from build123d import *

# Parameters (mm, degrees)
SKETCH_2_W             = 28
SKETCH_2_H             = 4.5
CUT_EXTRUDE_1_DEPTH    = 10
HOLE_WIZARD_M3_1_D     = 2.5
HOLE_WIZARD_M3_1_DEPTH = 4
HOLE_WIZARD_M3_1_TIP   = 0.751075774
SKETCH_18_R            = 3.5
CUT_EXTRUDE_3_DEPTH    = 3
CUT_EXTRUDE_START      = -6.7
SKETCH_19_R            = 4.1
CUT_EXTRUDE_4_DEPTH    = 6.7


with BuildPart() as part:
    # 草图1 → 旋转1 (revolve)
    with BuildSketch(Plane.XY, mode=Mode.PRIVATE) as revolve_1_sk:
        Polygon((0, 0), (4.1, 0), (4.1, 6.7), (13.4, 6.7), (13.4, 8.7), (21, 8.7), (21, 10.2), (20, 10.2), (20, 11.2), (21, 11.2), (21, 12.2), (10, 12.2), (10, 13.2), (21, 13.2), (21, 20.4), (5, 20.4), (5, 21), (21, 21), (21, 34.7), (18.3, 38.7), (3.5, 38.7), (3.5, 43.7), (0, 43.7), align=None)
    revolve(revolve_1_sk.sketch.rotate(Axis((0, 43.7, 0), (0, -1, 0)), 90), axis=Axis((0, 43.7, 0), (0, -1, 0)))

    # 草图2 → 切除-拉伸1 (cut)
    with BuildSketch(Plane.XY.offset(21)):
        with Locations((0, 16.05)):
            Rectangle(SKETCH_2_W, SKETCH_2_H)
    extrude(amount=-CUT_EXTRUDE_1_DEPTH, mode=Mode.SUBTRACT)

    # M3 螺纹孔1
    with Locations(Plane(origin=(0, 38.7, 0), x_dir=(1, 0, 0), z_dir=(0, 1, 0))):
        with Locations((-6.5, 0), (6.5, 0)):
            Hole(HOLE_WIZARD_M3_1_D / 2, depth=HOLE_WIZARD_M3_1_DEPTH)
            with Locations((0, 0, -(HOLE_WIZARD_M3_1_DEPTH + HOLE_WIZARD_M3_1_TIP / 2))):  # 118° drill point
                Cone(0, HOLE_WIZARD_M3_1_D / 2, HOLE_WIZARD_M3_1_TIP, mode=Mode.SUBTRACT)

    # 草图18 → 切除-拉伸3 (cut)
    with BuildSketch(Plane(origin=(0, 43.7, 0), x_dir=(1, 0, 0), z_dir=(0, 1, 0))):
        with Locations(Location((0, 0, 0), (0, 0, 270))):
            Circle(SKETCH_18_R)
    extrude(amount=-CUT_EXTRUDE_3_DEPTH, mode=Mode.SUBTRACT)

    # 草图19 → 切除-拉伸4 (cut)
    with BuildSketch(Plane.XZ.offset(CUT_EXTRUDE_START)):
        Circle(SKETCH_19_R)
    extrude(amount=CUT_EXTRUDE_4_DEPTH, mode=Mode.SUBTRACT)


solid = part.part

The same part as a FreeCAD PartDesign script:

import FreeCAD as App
import Part
import Sketcher


def add_polygon(sketch, points):
    """Adds a closed chain of lines whose ends are joined by coincident constraints."""
    first, n = sketch.GeometryCount, len(points)
    for a, b in zip(points, points[1:] + points[:1]):
        sketch.addGeometry(Part.LineSegment(App.Vector(*a, 0), App.Vector(*b, 0)), False)
    for i in range(n):
        sketch.addConstraint(Sketcher.Constraint("Coincident", first + i, 2, first + (i + 1) % n, 1))

doc = App.newDocument("Part")
params = doc.addObject("Spreadsheet::Sheet", "Params")
for row, (alias, value) in enumerate([
    ("sketch1_width", "1 mm"),
    ("sketch1_width2", "11 mm"),
    ("sketch1_width3", "16 mm"),
    ("sketch1_height", "2 mm"),
    ("sketch1_height2", "5 mm"),
    ("revolution_angle", "360 deg"),
    ("sketch2_width", "28 mm"),
    ("sketch2_height", "4.5 mm"),
    ("pocket1_length", "10 mm"),
    ("sketch3_diameter", "2.5 mm"),
    ("hole_diameter", "2.5 mm"),
    ("hole_depth", "4 mm"),
    ("sketch4_diameter", "7 mm"),
    ("pocket2_length", "3 mm"),
    ("sketch5_diameter", "8.2 mm"),
    ("pocket3_length", "6.7 mm"),
], start=1):
    params.set(f"A{row}", alias)
    params.set(f"B{row}", "=" + value)
    params.setAlias(f"B{row}", alias)

body = doc.addObject("PartDesign::Body", "Body")

sketch1 = body.newObject("Sketcher::SketchObject", "Sketch")
sketch1.AttachmentSupport = (doc.getObject("XY_Plane"), [""])
sketch1.MapMode = "FlatFace"
add_polygon(sketch1, [(0, 0), (4.1, 0), (4.1, 6.7), (13.4, 6.7), (13.4, 8.7), (21, 8.7), (21, 10.2), (20, 10.2), (20, 11.2), (21, 11.2), (21, 12.2), (10, 12.2), (10, 13.2), (21, 13.2), (21, 20.4), (5, 20.4), (5, 21), (21, 21), (21, 34.7), (18.3, 38.7), (3.5, 38.7), (3.5, 43.7), (0, 43.7)])
sketch1.addConstraint([
    Sketcher.Constraint("Horizontal", 0),
    Sketcher.Constraint("Vertical", 1),
    Sketcher.Constraint("Horizontal", 2),
    Sketcher.Constraint("Vertical", 3),
    Sketcher.Constraint("Horizontal", 4),
    Sketcher.Constraint("Vertical", 5),
    Sketcher.Constraint("Horizontal", 6),
    Sketcher.Constraint("Vertical", 7),
    Sketcher.Constraint("Horizontal", 8),
    Sketcher.Constraint("Vertical", 9),
    Sketcher.Constraint("Horizontal", 10),
    Sketcher.Constraint("Vertical", 11),
    Sketcher.Constraint("Horizontal", 12),
    Sketcher.Constraint("Vertical", 13),
    Sketcher.Constraint("Horizontal", 14),
    Sketcher.Constraint("Vertical", 15),
    Sketcher.Constraint("Horizontal", 16),
    Sketcher.Constraint("Vertical", 17),
    Sketcher.Constraint("Horizontal", 19),
    Sketcher.Constraint("Vertical", 20),
    Sketcher.Constraint("Horizontal", 21),
    Sketcher.Constraint("Vertical", 22),
    Sketcher.Constraint("Coincident", 22, 2, -1, 1),
    Sketcher.Constraint("Vertical", 5, 2, 8, 2),
    Sketcher.Constraint("Vertical", 9, 2, 12, 2),
    Sketcher.Constraint("Vertical", 13, 2, 16, 2),
    Sketcher.Constraint("Equal", 8, 7),
    Sketcher.Constraint("Equal", 7, 9),
    Sketcher.Constraint("Equal", 9, 11),
    Sketcher.Constraint("DistanceX", 6, 2, 6, 1, 1.0),
    Sketcher.Constraint("DistanceX", 10, 2, 10, 1, 11.0),
    Sketcher.Constraint("DistanceX", 14, 2, 14, 1, 16.0),
    Sketcher.Constraint("DistanceY", 3, 1, 3, 2, 2.0),
    Sketcher.Constraint("DistanceY", 20, 1, 20, 2, 5.0),
    Sketcher.Constraint("DistanceX", 0, 1, 0, 2, 4.1),
    Sketcher.Constraint("DistanceX", 2, 1, 2, 2, 9.3),
    Sketcher.Constraint("DistanceX", 4, 1, 4, 2, 7.6),
    Sketcher.Constraint("DistanceX", 19, 2, 19, 1, 14.8),
    Sketcher.Constraint("DistanceX", 21, 2, 21, 1, 3.5),
    Sketcher.Constraint("DistanceY", 1, 1, 1, 2, 6.7),
    Sketcher.Constraint("DistanceY", 5, 1, 5, 2, 1.5),
    Sketcher.Constraint("DistanceY", 13, 1, 13, 2, 7.2),
    Sketcher.Constraint("DistanceY", 15, 1, 15, 2, 0.6),
    Sketcher.Constraint("DistanceY", 17, 1, 17, 2, 13.7),
    Sketcher.Constraint("DistanceY", 22, 2, 22, 1, 43.7),
])
sketch1.setExpression("Constraints[52]", "Params.sketch1_width")
sketch1.setExpression("Constraints[53]", "Params.sketch1_width2")
sketch1.setExpression("Constraints[54]", "Params.sketch1_width3")
sketch1.setExpression("Constraints[55]", "Params.sketch1_height")
sketch1.setExpression("Constraints[56]", "Params.sketch1_height2")
revolution = body.newObject("PartDesign::Revolution", "Revolution")
revolution.Profile = sketch1
revolution.ReferenceAxis = (sketch1, ["V_Axis"])
revolution.setExpression("Angle", "Params.revolution_angle")

sketch2 = body.newObject("Sketcher::SketchObject", "Sketch001")
sketch2.AttachmentSupport = (doc.getObject("XY_Plane"), [""])
sketch2.MapMode = "FlatFace"
sketch2.AttachmentOffset = App.Placement(App.Vector(0, 0, 21), App.Rotation())
add_polygon(sketch2, [(-14, 18.3), (-14, 13.8), (14, 13.8), (14, 18.3)])
sketch2.addConstraint([
    Sketcher.Constraint("Vertical", 0),
    Sketcher.Constraint("Horizontal", 1),
    Sketcher.Constraint("Vertical", 2),
    Sketcher.Constraint("Horizontal", 3),
    Sketcher.Constraint("DistanceX", 1, 1, 1, 2, 28.0),
    Sketcher.Constraint("DistanceY", 0, 2, 0, 1, 4.5),
    Sketcher.Constraint("DistanceX", 0, 2, -1, 1, 14.0),
    Sketcher.Constraint("DistanceY", -1, 1, 0, 2, 13.8),
])
sketch2.setExpression("Constraints[8]", "Params.sketch2_width")
sketch2.setExpression("Constraints[9]", "Params.sketch2_height")
pocket1 = body.newObject("PartDesign::Pocket", "Pocket")
pocket1.Profile = sketch2
pocket1.setExpression("Length", "Params.pocket1_length")

sketch3 = body.newObject("Sketcher::SketchObject", "Sketch002")
sketch3.AttachmentSupport = (doc.getObject("XZ_Plane"), [""])
sketch3.MapMode = "FlatFace"
sketch3.AttachmentOffset = App.Placement(App.Vector(0, 0, -38.7), App.Rotation())
sketch3.addGeometry([
    Part.Circle(App.Vector(-6.5, 0, 0), App.Vector(0, 0, 1), 1.2),
    Part.Circle(App.Vector(6.5, 0, 0), App.Vector(0, 0, 1), 1.2),
], False)
sketch3.addConstraint([
    Sketcher.Constraint("Equal", 0, 1),
    Sketcher.Constraint("Symmetric", 0, 3, 1, 3, -1, 1),
    Sketcher.Constraint("PointOnObject", 0, 3, -1),
    Sketcher.Constraint("Diameter", 0, 2.5),
    Sketcher.Constraint("DistanceX", 0, 3, 1, 3, 13.0),
])
sketch3.setExpression("Constraints[3]", "Params.sketch3_diameter")
doc.recompute()
hole = body.newObject("PartDesign::Hole", "Hole")
hole.Profile = sketch3
hole.ThreadType = "None"
hole.setExpression("Diameter", "Params.hole_diameter")
hole.DepthType = "Dimension"
hole.setExpression("Depth", "Params.hole_depth")
hole.DrillPoint = "Angled"
hole.DrillPointAngle = 118
hole.Reversed = True

sketch4 = body.newObject("Sketcher::SketchObject", "Sketch003")
sketch4.AttachmentSupport = (doc.getObject("XZ_Plane"), [""])
sketch4.MapMode = "FlatFace"
sketch4.AttachmentOffset = App.Placement(App.Vector(0, 0, -43.7), App.Rotation())
sketch4.addGeometry(Part.Circle(App.Vector(0, 0, 0), App.Vector(0, 0, 1), 3.5), False)
sketch4.addConstraint([
    Sketcher.Constraint("Coincident", 0, 3, -1, 1),
    Sketcher.Constraint("Diameter", 0, 7.0),
])
sketch4.setExpression("Constraints[1]", "Params.sketch4_diameter")
pocket2 = body.newObject("PartDesign::Pocket", "Pocket001")
pocket2.Profile = sketch4
pocket2.setExpression("Length", "Params.pocket2_length")
pocket2.Reversed = True

sketch5 = body.newObject("Sketcher::SketchObject", "Sketch004")
sketch5.AttachmentSupport = (doc.getObject("XZ_Plane"), [""])
sketch5.MapMode = "FlatFace"
sketch5.AttachmentOffset = App.Placement(App.Vector(0, 0, -6.7), App.Rotation())
sketch5.addGeometry(Part.Circle(App.Vector(0, 0, 0), App.Vector(0, 0, 1), 4.1), False)
sketch5.addConstraint([
    Sketcher.Constraint("Coincident", 0, 3, -1, 1),
    Sketcher.Constraint("Diameter", 0, 8.2),
])
sketch5.setExpression("Constraints[1]", "Params.sketch5_diameter")
pocket3 = body.newObject("PartDesign::Pocket", "Pocket002")
pocket3.Profile = sketch5
pocket3.setExpression("Length", "Params.pocket3_length")
pocket3.Reversed = True

doc.recompute()
